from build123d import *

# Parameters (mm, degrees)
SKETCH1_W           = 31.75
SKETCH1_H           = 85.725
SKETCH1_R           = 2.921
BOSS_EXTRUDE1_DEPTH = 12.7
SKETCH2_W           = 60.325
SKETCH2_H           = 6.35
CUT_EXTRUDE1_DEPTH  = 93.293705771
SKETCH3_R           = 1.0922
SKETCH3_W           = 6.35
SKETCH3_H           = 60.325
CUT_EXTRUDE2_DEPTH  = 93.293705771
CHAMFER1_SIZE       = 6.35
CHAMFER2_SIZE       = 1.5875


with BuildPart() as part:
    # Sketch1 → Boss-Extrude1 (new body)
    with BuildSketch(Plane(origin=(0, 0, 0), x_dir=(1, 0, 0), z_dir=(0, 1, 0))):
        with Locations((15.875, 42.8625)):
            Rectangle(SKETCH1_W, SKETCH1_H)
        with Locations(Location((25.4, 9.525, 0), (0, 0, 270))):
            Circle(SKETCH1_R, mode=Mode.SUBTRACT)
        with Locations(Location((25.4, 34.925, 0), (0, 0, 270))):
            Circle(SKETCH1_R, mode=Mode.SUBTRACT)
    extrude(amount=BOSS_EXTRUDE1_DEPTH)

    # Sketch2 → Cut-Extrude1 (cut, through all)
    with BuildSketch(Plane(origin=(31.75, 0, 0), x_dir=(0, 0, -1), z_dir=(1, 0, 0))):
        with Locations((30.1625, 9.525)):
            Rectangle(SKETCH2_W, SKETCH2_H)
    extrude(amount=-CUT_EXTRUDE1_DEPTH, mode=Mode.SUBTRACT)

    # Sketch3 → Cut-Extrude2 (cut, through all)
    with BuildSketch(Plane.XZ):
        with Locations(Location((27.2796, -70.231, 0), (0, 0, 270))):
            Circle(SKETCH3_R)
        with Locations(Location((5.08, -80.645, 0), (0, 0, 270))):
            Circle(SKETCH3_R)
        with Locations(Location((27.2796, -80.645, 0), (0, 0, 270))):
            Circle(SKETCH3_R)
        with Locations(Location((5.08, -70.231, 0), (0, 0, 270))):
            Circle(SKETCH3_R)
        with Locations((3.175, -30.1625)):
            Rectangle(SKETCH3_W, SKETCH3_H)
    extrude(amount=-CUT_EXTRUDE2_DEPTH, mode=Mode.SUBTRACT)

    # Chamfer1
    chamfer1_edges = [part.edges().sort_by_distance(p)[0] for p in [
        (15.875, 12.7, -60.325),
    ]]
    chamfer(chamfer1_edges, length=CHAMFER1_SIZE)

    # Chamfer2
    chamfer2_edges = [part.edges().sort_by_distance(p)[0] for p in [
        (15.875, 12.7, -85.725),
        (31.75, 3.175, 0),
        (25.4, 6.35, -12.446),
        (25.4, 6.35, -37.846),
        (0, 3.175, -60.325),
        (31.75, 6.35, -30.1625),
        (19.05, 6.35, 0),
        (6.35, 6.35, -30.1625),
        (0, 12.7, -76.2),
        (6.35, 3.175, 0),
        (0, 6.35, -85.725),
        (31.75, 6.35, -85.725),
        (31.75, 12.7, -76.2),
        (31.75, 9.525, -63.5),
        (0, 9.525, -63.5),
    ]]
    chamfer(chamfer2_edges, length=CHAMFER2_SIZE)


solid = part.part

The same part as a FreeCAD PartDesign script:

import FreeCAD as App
import Part
import Sketcher

V = App.Vector
Q = App.Units.Quantity


def edges_at(feature, points):
    """Names of the edges that pass closest to the given points."""
    edges = feature.Shape.Edges
    near = lambda p: min(range(len(edges)), key=lambda i: edges[i].distToShape(Part.Vertex(*p))[0])
    return sorted({f"Edge{near(p) + 1}" for p in points})


def add_polygon(sketch, points):
    """Adds a closed chain of lines whose ends are joined by coincident constraints."""
    first, n = sketch.GeometryCount, len(points)
    for a, b in zip(points, points[1:] + points[:1]):
        sketch.addGeometry(Part.LineSegment(App.Vector(*a, 0), App.Vector(*b, 0)), False)
    for i in range(n):
        sketch.addConstraint(Sketcher.Constraint("Coincident", first + i, 2, first + (i + 1) % n, 1))

doc = App.newDocument("Part")
body = doc.addObject("PartDesign::Body", "Body")

# Sketch on XZ plane
sketch1 = body.newObject("Sketcher::SketchObject", "Sketch")
sketch1.AttachmentSupport = (doc.getObject("XZ_Plane"), [""])
sketch1.MapMode = "FlatFace"
add_polygon(sketch1, [(0, -85.7), (0, 0), (31.8, 0), (31.8, -85.7)])  # lines 0-3
sketch1.addGeometry(Part.Circle(V(25.4, -9.5, 0), V(0, 0, 1), 2.9), False)  # 4
sketch1.addGeometry(Part.Circle(V(25.4, -34.9, 0), V(0, 0, 1), 2.9), False)  # 5
sketch1.addConstraint(Sketcher.Constraint("Vertical", 0))
sketch1.addConstraint(Sketcher.Constraint("Horizontal", 1))
sketch1.addConstraint(Sketcher.Constraint("Vertical", 2))
sketch1.addConstraint(Sketcher.Constraint("Horizontal", 3))
sketch1.addConstraint(Sketcher.Constraint("Coincident", 0, 2, -1, 1))
sketch1.addConstraint(Sketcher.Constraint("Equal", 4, 5))
sketch1.addConstraint(Sketcher.Constraint("Vertical", 4, 3, 5, 3))
sketch1.addConstraint(Sketcher.Constraint("Diameter", 4, Q("0.23 in")))
sketch1.addConstraint(Sketcher.Constraint("DistanceX", -1, 1, 4, 3, Q("1 in")))
sketch1.addConstraint(Sketcher.Constraint("DistanceY", 5, 3, 4, 3, Q("1 in")))
sketch1.addConstraint(Sketcher.Constraint("DistanceY", 2, 2, 5, 3, Q("2 in")))
sketch1.addConstraint(Sketcher.Constraint("DistanceX", 1, 1, 1, 2, Q("1.25 in")))
sketch1.addConstraint(Sketcher.Constraint("DistanceY", 0, 1, 0, 2, Q("3.375 in")))
pad1 = body.newObject("PartDesign::Pad", "Pad")
pad1.Profile = sketch1
pad1.Length = Q("0.5 in")
pad1.Reversed = True

# Sketch on YZ plane
sketch2 = body.newObject("Sketcher::SketchObject", "Sketch001")
sketch2.AttachmentSupport = (doc.getObject("YZ_Plane"), [""])
sketch2.MapMode = "FlatFace"
sketch2.AttachmentOffset = App.Placement(V(0, 0, 1.25 * 25.4), App.Rotation())
add_polygon(sketch2, [(13, 0), (6, 0), (6, -60), (13, -60)])  # lines 0-3
sketch2.addConstraint(Sketcher.Constraint("Horizontal", 0))
sketch2.addConstraint(Sketcher.Constraint("Vertical", 1))
sketch2.addConstraint(Sketcher.Constraint("Horizontal", 2))
sketch2.addConstraint(Sketcher.Constraint("Vertical", 3))
sketch2.addConstraint(Sketcher.Constraint("PointOnObject", 0, 2, -1))
sketch2.addConstraint(Sketcher.Constraint("DistanceX", 0, 2, 0, 1, Q("0.25 in")))
sketch2.addConstraint(Sketcher.Constraint("DistanceX", -1, 1, 2, 2, Q("0.5 in")))
sketch2.addConstraint(Sketcher.Constraint("DistanceY", 1, 2, 1, 1, Q("2.375 in")))
pocket1 = body.newObject("PartDesign::Pocket", "Pocket")
pocket1.Profile = sketch2
pocket1.Type = "ThroughAll"

# Sketch on XZ plane
sketch3 = body.newObject("Sketcher::SketchObject", "Sketch002")
sketch3.AttachmentSupport = (doc.getObject("XZ_Plane"), [""])
sketch3.MapMode = "FlatFace"
sketch3.addGeometry(Part.Circle(V(27.3, -70.2, 0), V(0, 0, 1), 1.1), False)  # 0
sketch3.addGeometry(Part.Circle(V(5.1, -80.6, 0), V(0, 0, 1), 1.1), False)  # 1
sketch3.addGeometry(Part.Circle(V(27.3, -80.6, 0), V(0, 0, 1), 1.1), False)  # 2
sketch3.addGeometry(Part.Circle(V(5.1, -70.2, 0), V(0, 0, 1), 1.1), False)  # 3
add_polygon(sketch3, [(0, 0), (0, -60.3), (6.3, -60.3), (6.3, 0)])  # lines 4-7
sketch3.addConstraint(Sketcher.Constraint("Vertical", 4))
sketch3.addConstraint(Sketcher.Constraint("Horizontal", 5))
sketch3.addConstraint(Sketcher.Constraint("Vertical", 6))
sketch3.addConstraint(Sketcher.Constraint("Horizontal", 7))
sketch3.addConstraint(Sketcher.Constraint("Coincident", 7, 2, -1, 1))
sketch3.addConstraint(Sketcher.Constraint("Equal", 0, 1))
sketch3.addConstraint(Sketcher.Constraint("Equal", 1, 2))
sketch3.addConstraint(Sketcher.Constraint("Equal", 2, 3))
sketch3.addConstraint(Sketcher.Constraint("Horizontal", 1, 3, 2, 3))
sketch3.addConstraint(Sketcher.Constraint("Horizontal", 0, 3, 3, 3))
sketch3.addConstraint(Sketcher.Constraint("Vertical", 0, 3, 2, 3))
sketch3.addConstraint(Sketcher.Constraint("Vertical", 1, 3, 3, 3))
sketch3.addConstraint(Sketcher.Constraint("Diameter", 0, Q("0.086 in")))
sketch3.addConstraint(Sketcher.Constraint("DistanceX", 5, 1, 5, 2, Q("0.25 in")))
sketch3.addConstraint(Sketcher.Constraint("DistanceX", -1, 1, 1, 3, Q("0.2 in")))
sketch3.addConstraint(Sketcher.Constraint("DistanceY", 1, 3, 4, 2, Q("0.8 in")))
sketch3.addConstraint(Sketcher.Constraint("DistanceY", 4, 2, 4, 1, Q("2.375 in")))
sketch3.addConstraint(Sketcher.Constraint("DistanceY", 1, 3, 0, 3, Q("0.41 in")))
sketch3.addConstraint(Sketcher.Constraint("DistanceX", -1, 1, 0, 3, Q("1.074 in")))
pocket2 = body.newObject("PartDesign::Pocket", "Pocket001")
pocket2.Profile = sketch3
pocket2.Type = "ThroughAll"
doc.recompute()

chamfer = body.newObject("PartDesign::Chamfer", "Chamfer")
chamfer.Base = (pocket2, edges_at(pocket2, [(15.875, 12.7, -60.325)]))
chamfer.Size = Q("0.25 in")
doc.recompute()

chamfer2 = body.newObject("PartDesign::Chamfer", "Chamfer001")
chamfer2.Base = (chamfer, edges_at(chamfer, [
    (15.875, 12.7, -85.725),
    (31.75, 3.175, 0),
    (25.4, 6.35, -12.446),
    (25.4, 6.35, -37.846),
    (0, 3.175, -60.325),
    (31.75, 6.35, -30.163),
    (19.05, 6.35, 0),
    (6.35, 6.35, -30.163),
    (0, 12.7, -76.2),
    (6.35, 3.175, 0),
    (0, 6.35, -85.725),
    (31.75, 6.35, -85.725),
    (31.75, 12.7, -76.2),
    (31.75, 9.525, -63.5),
    (0, 9.525, -63.5),
]))
chamfer2.Size = Q("0.0625 in")

doc.recompute()
